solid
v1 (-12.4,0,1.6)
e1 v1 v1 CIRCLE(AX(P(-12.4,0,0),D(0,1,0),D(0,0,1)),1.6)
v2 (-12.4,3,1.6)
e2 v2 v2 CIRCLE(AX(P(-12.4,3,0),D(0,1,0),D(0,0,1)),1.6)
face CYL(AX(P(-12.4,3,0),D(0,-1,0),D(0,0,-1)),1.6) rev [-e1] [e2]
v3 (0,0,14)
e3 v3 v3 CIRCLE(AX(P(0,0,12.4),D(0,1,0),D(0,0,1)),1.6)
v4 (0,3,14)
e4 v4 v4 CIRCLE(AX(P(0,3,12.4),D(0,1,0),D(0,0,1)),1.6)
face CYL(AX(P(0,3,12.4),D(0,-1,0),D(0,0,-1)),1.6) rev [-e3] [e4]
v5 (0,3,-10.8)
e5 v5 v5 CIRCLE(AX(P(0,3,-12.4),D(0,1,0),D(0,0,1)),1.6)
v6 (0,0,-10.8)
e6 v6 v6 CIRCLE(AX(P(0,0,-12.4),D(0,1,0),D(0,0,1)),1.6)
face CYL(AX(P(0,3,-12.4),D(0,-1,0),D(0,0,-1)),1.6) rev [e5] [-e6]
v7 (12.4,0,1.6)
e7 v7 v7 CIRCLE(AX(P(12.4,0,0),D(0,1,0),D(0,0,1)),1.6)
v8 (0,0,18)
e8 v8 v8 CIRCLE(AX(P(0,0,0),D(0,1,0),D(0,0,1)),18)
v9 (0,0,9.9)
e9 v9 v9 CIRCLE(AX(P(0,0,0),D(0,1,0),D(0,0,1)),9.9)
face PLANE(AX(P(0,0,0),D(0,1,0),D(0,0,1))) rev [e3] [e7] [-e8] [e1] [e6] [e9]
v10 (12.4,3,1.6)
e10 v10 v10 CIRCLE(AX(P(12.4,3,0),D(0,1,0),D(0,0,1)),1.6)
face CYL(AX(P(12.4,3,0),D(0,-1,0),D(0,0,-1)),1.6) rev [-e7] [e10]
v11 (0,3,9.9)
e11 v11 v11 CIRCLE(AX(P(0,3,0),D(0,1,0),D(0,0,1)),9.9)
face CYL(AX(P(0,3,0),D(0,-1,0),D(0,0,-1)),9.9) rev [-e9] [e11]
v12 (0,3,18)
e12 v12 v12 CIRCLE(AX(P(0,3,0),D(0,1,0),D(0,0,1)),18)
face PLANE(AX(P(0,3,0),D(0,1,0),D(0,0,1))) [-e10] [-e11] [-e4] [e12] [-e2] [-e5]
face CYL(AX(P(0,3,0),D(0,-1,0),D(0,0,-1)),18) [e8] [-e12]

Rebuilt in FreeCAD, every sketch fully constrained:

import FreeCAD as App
import Part
import Sketcher
from FreeCAD import Vector

doc = App.newDocument("Part")
body = doc.addObject("PartDesign::Body", "Body")

# Sketch on XZ plane
sketch1 = body.newObject("Sketcher::SketchObject", "Sketch")
sketch1.AttachmentSupport = (doc.getObject("XZ_Plane"), [""])
sketch1.MapMode = "FlatFace"
sketch1.addGeometry([
    Part.Circle(Vector(0, 0, 0), Vector(0, 0, 1), 18),  # 0
    Part.Circle(Vector(0, -12.4, 0), Vector(0, 0, 1), 1.6),  # 1
    Part.Circle(Vector(-12.4, 0, 0), Vector(0, 0, 1), 1.6),  # 2
    Part.Circle(Vector(12.4, 0, 0), Vector(0, 0, 1), 1.6),  # 3
    Part.Circle(Vector(0, 0, 0), Vector(0, 0, 1), 9.9),  # 4
    Part.Circle(Vector(0, 12.4, 0), Vector(0, 0, 1), 1.6),  # 5
], False)
sketch1.addConstraint([
    Sketcher.Constraint("Coincident", 0, 3, -1, 1),
    Sketcher.Constraint("Coincident", 4, 3, -1, 1),
    Sketcher.Constraint("Equal", 1, 2),
    Sketcher.Constraint("Equal", 2, 3),
    Sketcher.Constraint("Equal", 3, 5),
    Sketcher.Constraint("Symmetric", 2, 3, 3, 3, -1, 1),
    Sketcher.Constraint("Symmetric", 1, 3, 5, 3, -1, 1),
    Sketcher.Constraint("PointOnObject", 1, 3, -2),
    Sketcher.Constraint("PointOnObject", 2, 3, -1),
    Sketcher.Constraint("Diameter", 0, 36.0),
    Sketcher.Constraint("Diameter", 1, 3.2),
    Sketcher.Constraint("Diameter", 4, 19.8),
    Sketcher.Constraint("DistanceY", 1, 3, -1, 1, 12.4),
    Sketcher.Constraint("DistanceX", 2, 3, -1, 1, 12.4),
])
pad1 = body.newObject("PartDesign::Pad", "Pad")
pad1.Profile = sketch1
pad1.Length = 3
pad1.Reversed = True

doc.recompute()
